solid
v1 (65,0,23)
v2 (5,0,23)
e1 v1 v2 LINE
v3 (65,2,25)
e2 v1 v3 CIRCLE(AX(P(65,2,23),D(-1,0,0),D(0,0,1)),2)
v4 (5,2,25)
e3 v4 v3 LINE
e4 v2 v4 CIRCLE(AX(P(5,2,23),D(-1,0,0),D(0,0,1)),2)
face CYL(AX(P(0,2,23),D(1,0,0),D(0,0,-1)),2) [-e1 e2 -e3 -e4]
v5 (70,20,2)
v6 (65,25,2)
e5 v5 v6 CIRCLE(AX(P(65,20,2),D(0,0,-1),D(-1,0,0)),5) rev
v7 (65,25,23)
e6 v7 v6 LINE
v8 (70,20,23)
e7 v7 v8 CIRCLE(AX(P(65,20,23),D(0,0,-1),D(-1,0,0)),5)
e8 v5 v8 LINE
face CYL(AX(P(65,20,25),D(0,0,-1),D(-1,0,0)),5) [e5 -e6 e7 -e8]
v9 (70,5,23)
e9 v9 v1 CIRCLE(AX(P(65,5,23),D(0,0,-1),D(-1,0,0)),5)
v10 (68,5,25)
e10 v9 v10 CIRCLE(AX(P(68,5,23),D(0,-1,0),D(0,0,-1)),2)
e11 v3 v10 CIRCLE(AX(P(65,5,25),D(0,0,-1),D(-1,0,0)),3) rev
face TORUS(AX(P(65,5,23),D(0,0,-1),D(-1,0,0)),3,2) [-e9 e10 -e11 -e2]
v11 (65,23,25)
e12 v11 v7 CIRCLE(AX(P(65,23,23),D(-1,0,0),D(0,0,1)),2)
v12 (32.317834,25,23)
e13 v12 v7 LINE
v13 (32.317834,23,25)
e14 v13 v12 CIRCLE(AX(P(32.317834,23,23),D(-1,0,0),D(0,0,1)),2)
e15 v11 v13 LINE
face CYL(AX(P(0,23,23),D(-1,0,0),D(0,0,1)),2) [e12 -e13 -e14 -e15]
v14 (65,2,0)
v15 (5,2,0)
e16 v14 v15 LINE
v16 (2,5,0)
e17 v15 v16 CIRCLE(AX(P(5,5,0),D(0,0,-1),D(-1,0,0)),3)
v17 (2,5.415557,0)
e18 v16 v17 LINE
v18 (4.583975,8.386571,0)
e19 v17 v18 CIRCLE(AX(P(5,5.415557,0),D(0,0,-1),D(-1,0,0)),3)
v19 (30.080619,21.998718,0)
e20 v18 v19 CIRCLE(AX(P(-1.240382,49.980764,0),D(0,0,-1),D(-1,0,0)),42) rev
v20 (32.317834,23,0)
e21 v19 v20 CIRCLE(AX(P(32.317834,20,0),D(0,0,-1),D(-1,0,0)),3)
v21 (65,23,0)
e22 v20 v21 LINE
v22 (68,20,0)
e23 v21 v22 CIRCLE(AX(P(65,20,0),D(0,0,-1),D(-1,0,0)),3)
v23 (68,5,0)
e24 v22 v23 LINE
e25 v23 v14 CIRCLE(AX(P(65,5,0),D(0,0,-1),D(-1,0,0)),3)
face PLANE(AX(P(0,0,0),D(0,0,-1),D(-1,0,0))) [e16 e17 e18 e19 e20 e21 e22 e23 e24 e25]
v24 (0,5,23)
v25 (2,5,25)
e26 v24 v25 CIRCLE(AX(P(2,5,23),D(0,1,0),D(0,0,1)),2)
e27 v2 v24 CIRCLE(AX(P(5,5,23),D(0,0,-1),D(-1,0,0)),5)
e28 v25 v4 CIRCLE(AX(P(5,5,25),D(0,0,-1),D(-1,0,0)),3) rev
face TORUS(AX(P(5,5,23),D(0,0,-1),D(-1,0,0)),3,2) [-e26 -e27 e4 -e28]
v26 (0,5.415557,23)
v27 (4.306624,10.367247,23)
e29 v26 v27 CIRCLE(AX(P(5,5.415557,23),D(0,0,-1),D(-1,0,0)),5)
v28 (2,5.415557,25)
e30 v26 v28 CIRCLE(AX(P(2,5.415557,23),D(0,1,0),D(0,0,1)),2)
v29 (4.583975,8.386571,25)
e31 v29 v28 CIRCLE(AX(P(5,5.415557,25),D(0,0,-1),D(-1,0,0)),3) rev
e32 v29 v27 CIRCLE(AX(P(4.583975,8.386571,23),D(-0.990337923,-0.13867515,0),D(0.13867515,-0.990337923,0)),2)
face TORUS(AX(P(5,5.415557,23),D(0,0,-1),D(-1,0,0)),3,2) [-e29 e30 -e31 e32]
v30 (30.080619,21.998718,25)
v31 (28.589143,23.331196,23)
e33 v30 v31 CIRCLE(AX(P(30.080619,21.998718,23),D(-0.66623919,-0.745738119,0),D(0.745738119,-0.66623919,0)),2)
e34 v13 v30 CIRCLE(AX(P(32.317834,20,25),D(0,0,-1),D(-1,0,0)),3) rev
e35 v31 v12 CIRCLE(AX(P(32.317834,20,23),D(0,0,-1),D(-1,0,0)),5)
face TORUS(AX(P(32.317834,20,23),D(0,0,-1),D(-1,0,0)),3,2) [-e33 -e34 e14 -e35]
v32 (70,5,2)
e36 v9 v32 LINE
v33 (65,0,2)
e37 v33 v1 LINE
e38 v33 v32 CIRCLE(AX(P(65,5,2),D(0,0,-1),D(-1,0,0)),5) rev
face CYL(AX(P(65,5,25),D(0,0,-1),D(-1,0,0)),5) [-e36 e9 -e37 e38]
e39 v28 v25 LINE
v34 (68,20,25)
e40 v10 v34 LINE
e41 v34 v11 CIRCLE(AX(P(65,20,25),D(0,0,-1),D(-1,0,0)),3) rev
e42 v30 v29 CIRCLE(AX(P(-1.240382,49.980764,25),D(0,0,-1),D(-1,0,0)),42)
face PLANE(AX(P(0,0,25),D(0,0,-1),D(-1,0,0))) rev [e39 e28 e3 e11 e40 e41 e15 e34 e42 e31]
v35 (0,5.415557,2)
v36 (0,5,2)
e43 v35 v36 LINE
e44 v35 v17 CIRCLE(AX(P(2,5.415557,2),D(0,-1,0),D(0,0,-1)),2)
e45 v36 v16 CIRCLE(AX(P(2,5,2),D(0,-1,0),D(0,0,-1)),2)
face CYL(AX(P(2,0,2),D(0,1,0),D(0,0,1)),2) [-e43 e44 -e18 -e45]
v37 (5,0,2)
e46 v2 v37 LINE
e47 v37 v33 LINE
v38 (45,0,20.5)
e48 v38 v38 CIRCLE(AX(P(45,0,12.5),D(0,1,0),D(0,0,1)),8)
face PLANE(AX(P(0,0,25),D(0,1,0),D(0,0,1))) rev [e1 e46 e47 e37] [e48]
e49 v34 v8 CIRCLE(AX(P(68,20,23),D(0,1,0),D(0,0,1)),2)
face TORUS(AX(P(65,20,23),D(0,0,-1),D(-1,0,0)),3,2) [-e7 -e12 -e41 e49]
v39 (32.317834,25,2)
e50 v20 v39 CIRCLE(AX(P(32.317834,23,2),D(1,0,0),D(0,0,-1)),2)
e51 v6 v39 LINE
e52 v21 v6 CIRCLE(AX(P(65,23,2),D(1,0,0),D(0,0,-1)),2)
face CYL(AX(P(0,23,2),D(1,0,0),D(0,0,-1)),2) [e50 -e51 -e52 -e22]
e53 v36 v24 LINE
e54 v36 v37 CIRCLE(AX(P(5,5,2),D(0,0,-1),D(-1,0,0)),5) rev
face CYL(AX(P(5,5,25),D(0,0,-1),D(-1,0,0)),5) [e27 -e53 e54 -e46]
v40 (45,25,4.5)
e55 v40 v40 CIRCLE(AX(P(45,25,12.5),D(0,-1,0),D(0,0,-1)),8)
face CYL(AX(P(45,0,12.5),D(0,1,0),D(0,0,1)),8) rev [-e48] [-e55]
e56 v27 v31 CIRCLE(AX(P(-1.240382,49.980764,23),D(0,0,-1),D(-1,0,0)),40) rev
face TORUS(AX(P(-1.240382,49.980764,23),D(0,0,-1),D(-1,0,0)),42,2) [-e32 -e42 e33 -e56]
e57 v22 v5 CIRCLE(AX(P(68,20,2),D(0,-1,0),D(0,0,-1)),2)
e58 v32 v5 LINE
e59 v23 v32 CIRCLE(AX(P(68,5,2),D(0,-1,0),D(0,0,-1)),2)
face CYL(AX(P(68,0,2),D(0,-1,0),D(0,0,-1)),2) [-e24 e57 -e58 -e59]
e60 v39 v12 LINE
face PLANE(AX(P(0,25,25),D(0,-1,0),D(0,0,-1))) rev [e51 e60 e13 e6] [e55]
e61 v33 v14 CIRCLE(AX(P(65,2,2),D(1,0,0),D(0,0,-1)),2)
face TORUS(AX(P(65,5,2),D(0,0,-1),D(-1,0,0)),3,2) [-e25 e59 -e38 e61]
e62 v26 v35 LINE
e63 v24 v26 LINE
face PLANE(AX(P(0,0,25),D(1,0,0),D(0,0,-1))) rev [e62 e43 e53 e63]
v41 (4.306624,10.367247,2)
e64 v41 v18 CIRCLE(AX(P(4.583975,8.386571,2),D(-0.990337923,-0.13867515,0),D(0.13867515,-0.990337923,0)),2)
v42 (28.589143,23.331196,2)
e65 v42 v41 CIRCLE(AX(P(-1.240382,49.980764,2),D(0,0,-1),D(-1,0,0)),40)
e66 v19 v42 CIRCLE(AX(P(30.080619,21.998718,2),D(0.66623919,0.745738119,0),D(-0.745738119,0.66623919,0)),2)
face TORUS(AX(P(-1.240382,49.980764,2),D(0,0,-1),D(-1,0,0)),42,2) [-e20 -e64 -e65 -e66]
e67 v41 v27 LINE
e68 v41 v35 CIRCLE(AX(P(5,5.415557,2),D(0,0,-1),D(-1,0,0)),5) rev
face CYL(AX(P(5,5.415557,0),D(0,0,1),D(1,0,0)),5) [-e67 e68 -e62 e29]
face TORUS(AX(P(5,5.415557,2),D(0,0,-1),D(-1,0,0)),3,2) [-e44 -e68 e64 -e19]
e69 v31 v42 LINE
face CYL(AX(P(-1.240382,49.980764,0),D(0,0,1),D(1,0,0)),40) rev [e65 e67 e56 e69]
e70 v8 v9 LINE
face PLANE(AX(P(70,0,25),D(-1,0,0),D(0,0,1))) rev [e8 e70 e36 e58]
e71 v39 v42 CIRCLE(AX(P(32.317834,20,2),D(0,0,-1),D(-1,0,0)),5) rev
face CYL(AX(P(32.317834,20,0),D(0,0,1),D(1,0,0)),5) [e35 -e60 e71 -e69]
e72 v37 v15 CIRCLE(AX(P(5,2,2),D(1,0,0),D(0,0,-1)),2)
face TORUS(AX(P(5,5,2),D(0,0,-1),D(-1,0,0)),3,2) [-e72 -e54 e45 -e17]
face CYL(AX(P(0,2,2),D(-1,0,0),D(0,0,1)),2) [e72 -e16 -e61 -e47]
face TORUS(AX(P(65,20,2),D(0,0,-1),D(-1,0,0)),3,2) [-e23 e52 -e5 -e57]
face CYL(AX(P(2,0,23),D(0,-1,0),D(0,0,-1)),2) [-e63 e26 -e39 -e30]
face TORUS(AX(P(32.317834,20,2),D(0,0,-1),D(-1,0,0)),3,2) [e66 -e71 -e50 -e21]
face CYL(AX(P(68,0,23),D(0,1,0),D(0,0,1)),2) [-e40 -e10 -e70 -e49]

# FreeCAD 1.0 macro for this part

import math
import FreeCAD as App
import Part
import Sketcher
Q = App.Units.Quantity


def edges_at(feature, points):
    """Names of the edges that pass closest to the given points."""
    edges = feature.Shape.Edges
    near = lambda p: min(range(len(edges)), key=lambda i: edges[i].distToShape(Part.Vertex(*p))[0])
    return sorted({f"Edge{near(p) + 1}" for p in points})


def add_polygon(sketch, points):
    """Adds a closed chain of lines whose ends are joined by coincident constraints."""
    first, n = sketch.GeometryCount, len(points)
    for a, b in zip(points, points[1:] + points[:1]):
        sketch.addGeometry(Part.LineSegment(App.Vector(*a, 0), App.Vector(*b, 0)), False)
    for i in range(n):
        sketch.addConstraint(Sketcher.Constraint("Coincident", first + i, 2, first + (i + 1) % n, 1))

doc = App.newDocument("Part")
body = doc.addObject("PartDesign::Body", "Body")

# Sketch on XY plane
sketch1 = doc.addObject("Sketcher::SketchObject", "Sketch")
body.addObject(sketch1)
sketch1.AttachmentSupport = (doc.XY_Plane, [""])
sketch1.MapMode = "FlatFace"
add_polygon(sketch1, [(0, 25), (0, 0), (70, 0), (70, 25)])  # lines 0-3
sketch1.addConstraint(Sketcher.Constraint("Vertical", 0))
sketch1.addConstraint(Sketcher.Constraint("Horizontal", 1))
sketch1.addConstraint(Sketcher.Constraint("Vertical", 2))
sketch1.addConstraint(Sketcher.Constraint("Horizontal", 3))
sketch1.addConstraint(Sketcher.Constraint("Coincident", 0, 2, -1, 1))
sketch1.addConstraint(Sketcher.Constraint("DistanceX", 1, 1, 1, 2, Q("70 mm")))
sketch1.addConstraint(Sketcher.Constraint("DistanceY", 0, 2, 0, 1, Q("25 mm")))
pad1 = doc.addObject("PartDesign::Pad", "Pad")
body.addObject(pad1)
pad1.Profile = sketch1
pad1.Length = 25

# Sketch on XY plane
sketch2 = doc.addObject("Sketcher::SketchObject", "Sketch001")
body.addObject(sketch2)
sketch2.AttachmentSupport = (doc.XY_Plane, [""])
sketch2.MapMode = "FlatFace"
sketch2.AttachmentOffset = App.Placement(App.Vector(0, 0, 25), App.Rotation())
sketch2.addGeometry(Part.LineSegment(App.Vector(30, 25, 0), App.Vector(0, 25, 0)), False)
sketch2.addGeometry(Part.LineSegment(App.Vector(0, 25, 0), App.Vector(0, 10, 0)), False)
sketch2.addGeometry(Part.ArcOfCircle(Part.Circle(App.Vector(-1, 50, 0), App.Vector(0, 0, 1), 40), math.radians(-88), math.radians(-39)), False)
sketch2.addConstraint(Sketcher.Constraint("Coincident", 0, 2, 1, 1))
sketch2.addConstraint(Sketcher.Constraint("Coincident", 1, 2, 2, 1))
sketch2.addConstraint(Sketcher.Constraint("Coincident", 2, 2, 0, 1))
sketch2.addConstraint(Sketcher.Constraint("Horizontal", 0))
sketch2.addConstraint(Sketcher.Constraint("Vertical", 1))
sketch2.addConstraint(Sketcher.Constraint("PointOnObject", 0, 2, -2))
sketch2.addConstraint(Sketcher.Constraint("Radius", 2, Q("40 mm")))
sketch2.addConstraint(Sketcher.Constraint("DistanceX", 0, 2, 0, 1, Q("30 mm")))
sketch2.addConstraint(Sketcher.Constraint("DistanceY", 1, 2, 1, 1, Q("15 mm")))
sketch2.addConstraint(Sketcher.Constraint("DistanceY", -1, 1, 0, 2, Q("25 mm")))
pocket1 = doc.addObject("PartDesign::Pocket", "Pocket")
body.addObject(pocket1)
pocket1.Profile = sketch2
pocket1.Type = "ThroughAll"
pocket1.Midplane = True
doc.recompute()

fillet = doc.addObject("PartDesign::Fillet", "Fillet")
body.addObject(fillet)
fillet.Base = (pocket1, edges_at(pocket1, [
    (30, 25, 12.5),
    (0, 10, 12.5),
    (70, 25, 12.5),
    (70, 0, 12.5),
    (0, 0, 12.5),
]))
fillet.Radius = 5
doc.recompute()

fillet2 = doc.addObject("PartDesign::Fillet", "Fillet001")
body.addObject(fillet2)
fillet2.Base = (fillet, edges_at(fillet, [
    (35, 0, 0),
    (35, 0, 25),
    (17.598, 14.695, 0),
    (48.659, 25, 0),
    (70, 12.5, 0),
    (0, 5.208, 0),
    (68.536, 23.536, 0),
    (68.536, 1.464, 0),
    (1.227, 8.697, 0),
    (30.275, 24.564, 0),
    (1.464, 1.464, 0),
    (0, 5.208, 25),
    (48.659, 25, 25),
    (17.598, 14.695, 25),
    (70, 12.5, 25),
    (68.536, 23.536, 25),
    (68.536, 1.464, 25),
    (1.227, 8.697, 25),
    (30.275, 24.564, 25),
    (1.464, 1.464, 25),
]))
fillet2.Radius = 2

# Sketch on XZ plane
sketch3 = doc.addObject("Sketcher::SketchObject", "Sketch002")
body.addObject(sketch3)
sketch3.AttachmentSupport = (doc.XZ_Plane, [""])
sketch3.MapMode = "FlatFace"
sketch3.AttachmentOffset = App.Placement(App.Vector(0, 0, -25), App.Rotation())
sketch3.addGeometry(Part.Circle(App.Vector(45, 12, 0), App.Vector(0, 0, 1), 8), False)
sketch3.addConstraint(Sketcher.Constraint("Diameter", 0, Q("16 mm")))
sketch3.addConstraint(Sketcher.Constraint("DistanceX", -1, 1, 0, 3, Q("45 mm")))
sketch3.addConstraint(Sketcher.Constraint("DistanceY", -1, 1, 0, 3, Q("12.5 mm")))
pocket2 = doc.addObject("PartDesign::Pocket", "Pocket001")
body.addObject(pocket2)
pocket2.Profile = sketch3
pocket2.Type = "ThroughAll"
pocket2.Midplane = True

doc.recompute()
